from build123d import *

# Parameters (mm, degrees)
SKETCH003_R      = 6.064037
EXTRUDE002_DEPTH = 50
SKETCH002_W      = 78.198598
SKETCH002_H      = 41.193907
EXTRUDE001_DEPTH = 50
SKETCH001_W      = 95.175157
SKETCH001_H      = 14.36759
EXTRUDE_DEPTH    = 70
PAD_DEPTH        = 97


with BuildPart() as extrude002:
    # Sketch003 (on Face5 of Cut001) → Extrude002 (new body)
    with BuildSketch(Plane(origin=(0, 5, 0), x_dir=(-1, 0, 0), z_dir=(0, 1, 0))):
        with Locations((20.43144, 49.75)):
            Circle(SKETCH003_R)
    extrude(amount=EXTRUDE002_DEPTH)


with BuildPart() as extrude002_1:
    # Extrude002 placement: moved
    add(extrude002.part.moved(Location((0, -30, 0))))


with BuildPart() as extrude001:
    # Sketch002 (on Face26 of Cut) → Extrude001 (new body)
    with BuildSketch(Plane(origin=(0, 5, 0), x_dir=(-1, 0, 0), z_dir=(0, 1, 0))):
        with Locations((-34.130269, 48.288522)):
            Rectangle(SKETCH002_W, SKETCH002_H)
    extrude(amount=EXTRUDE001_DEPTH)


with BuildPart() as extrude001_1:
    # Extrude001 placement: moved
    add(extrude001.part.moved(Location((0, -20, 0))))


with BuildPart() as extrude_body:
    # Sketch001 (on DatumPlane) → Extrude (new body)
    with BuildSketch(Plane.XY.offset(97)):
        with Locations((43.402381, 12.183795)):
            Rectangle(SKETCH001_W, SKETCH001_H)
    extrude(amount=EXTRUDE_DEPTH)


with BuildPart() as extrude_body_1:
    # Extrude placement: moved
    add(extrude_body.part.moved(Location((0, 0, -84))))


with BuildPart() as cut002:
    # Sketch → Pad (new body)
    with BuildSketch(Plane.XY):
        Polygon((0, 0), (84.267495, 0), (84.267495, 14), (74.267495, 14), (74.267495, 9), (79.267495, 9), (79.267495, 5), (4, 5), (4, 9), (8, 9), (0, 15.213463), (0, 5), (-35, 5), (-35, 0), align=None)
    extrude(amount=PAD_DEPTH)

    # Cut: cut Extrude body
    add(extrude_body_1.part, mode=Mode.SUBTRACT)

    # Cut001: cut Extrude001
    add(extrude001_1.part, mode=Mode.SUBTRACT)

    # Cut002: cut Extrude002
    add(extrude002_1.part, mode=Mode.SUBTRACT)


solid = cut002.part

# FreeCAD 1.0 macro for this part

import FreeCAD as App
import Part
import Sketcher
Q = App.Units.Quantity

doc = App.newDocument("Part")
body = doc.addObject("PartDesign::Body", "Body")

# Sketch on XZ plane
sketch1 = body.newObject("Sketcher::SketchObject", "Sketch")
sketch1.AttachmentSupport = (doc.getObject("XZ_Plane"), [""])
sketch1.MapMode = "FlatFace"
sketch1.AttachmentOffset = App.Placement(App.Vector(0, 0, -5), App.Rotation())
sketch1.addGeometry(Part.Circle(App.Vector(-20, 50, 0), App.Vector(0, 0, 1), 6), False)
sketch1.addConstraint(Sketcher.Constraint("DistanceY", -1, 1, 0, 3, Q("49.75 mm")))
sketch1.addConstraint(Sketcher.Constraint("Diameter", 0, Q("12.128074 mm")))
sketch1.addConstraint(Sketcher.Constraint("DistanceX", 0, 3, -1, 1, Q("20.43144 mm")))
pad1 = body.newObject("PartDesign::Pad", "Pad")
pad1.Profile = sketch1
pad1.Length = 50
pad1.Reversed = True
body2 = doc.addObject("PartDesign::Body", "Body001")
doc.recompute()

body.Placement = App.Placement(App.Vector(0, -30, 0), App.Rotation(App.Vector(0, 0, 1), 0))
boolean = body2.newObject("PartDesign::Boolean", "Boolean")
boolean.Type = "Fuse"
boolean.addObjects([body])
body3 = doc.addObject("PartDesign::Body", "Body002")

# Sketch on XZ plane
sketch2 = body3.newObject("Sketcher::SketchObject", "Sketch001")
sketch2.AttachmentSupport = (doc.getObject("XZ_Plane002"), [""])
sketch2.MapMode = "FlatFace"
sketch2.AttachmentOffset = App.Placement(App.Vector(0, 0, -5), App.Rotation())
sketch2.addGeometry(Part.LineSegment(App.Vector(73, 69, 0), App.Vector(73, 28, 0)), False)
sketch2.addGeometry(Part.LineSegment(App.Vector(73, 28, 0), App.Vector(-5, 28, 0)), False)
sketch2.addGeometry(Part.LineSegment(App.Vector(-5, 28, 0), App.Vector(-5, 69, 0)), False)
sketch2.addGeometry(Part.LineSegment(App.Vector(-5, 69, 0), App.Vector(73, 69, 0)), False)
sketch2.addConstraint(Sketcher.Constraint("Coincident", 0, 2, 1, 1))
sketch2.addConstraint(Sketcher.Constraint("Coincident", 1, 2, 2, 1))
sketch2.addConstraint(Sketcher.Constraint("Coincident", 2, 2, 3, 1))
sketch2.addConstraint(Sketcher.Constraint("Coincident", 3, 2, 0, 1))
sketch2.addConstraint(Sketcher.Constraint("Vertical", 0))
sketch2.addConstraint(Sketcher.Constraint("Horizontal", 1))
sketch2.addConstraint(Sketcher.Constraint("Vertical", 2))
sketch2.addConstraint(Sketcher.Constraint("Horizontal", 3))
sketch2.addConstraint(Sketcher.Constraint("DistanceX", 1, 2, 1, 1, Q("78.198598 mm")))
sketch2.addConstraint(Sketcher.Constraint("DistanceY", 0, 2, 0, 1, Q("41.193907 mm")))
sketch2.addConstraint(Sketcher.Constraint("DistanceX", -1, 1, 0, 2, Q("73.229568 mm")))
sketch2.addConstraint(Sketcher.Constraint("DistanceY", -1, 1, 0, 2, Q("27.691568 mm")))
pad2 = body3.newObject("PartDesign::Pad", "Pad001")
pad2.Profile = sketch2
pad2.Length = 50
pad2.Reversed = True
body4 = doc.addObject("PartDesign::Body", "Body003")
doc.recompute()

body3.Placement = App.Placement(App.Vector(0, -20, 0), App.Rotation(App.Vector(0, 0, 1), 0))
boolean2 = body4.newObject("PartDesign::Boolean", "Boolean001")
boolean2.Type = "Fuse"
boolean2.addObjects([body3])
body5 = doc.addObject("PartDesign::Body", "Body004")

# Sketch on XY plane
sketch3 = body5.newObject("Sketcher::SketchObject", "Sketch002")
sketch3.AttachmentSupport = (doc.getObject("XY_Plane004"), [""])
sketch3.MapMode = "FlatFace"
sketch3.AttachmentOffset = App.Placement(App.Vector(0, 0, 97), App.Rotation())
sketch3.addGeometry(Part.LineSegment(App.Vector(-4, 19, 0), App.Vector(-4, 5, 0)), False)
sketch3.addGeometry(Part.LineSegment(App.Vector(-4, 5, 0), App.Vector(91, 5, 0)), False)
sketch3.addGeometry(Part.LineSegment(App.Vector(91, 5, 0), App.Vector(91, 19, 0)), False)
sketch3.addGeometry(Part.LineSegment(App.Vector(91, 19, 0), App.Vector(-4, 19, 0)), False)
sketch3.addConstraint(Sketcher.Constraint("Coincident", 0, 2, 1, 1))
sketch3.addConstraint(Sketcher.Constraint("Coincident", 1, 2, 2, 1))
sketch3.addConstraint(Sketcher.Constraint("Coincident", 2, 2, 3, 1))
sketch3.addConstraint(Sketcher.Constraint("Coincident", 3, 2, 0, 1))
sketch3.addConstraint(Sketcher.Constraint("Vertical", 0))
sketch3.addConstraint(Sketcher.Constraint("Horizontal", 1))
sketch3.addConstraint(Sketcher.Constraint("Vertical", 2))
sketch3.addConstraint(Sketcher.Constraint("Horizontal", 3))
sketch3.addConstraint(Sketcher.Constraint("DistanceY", -1, 1, 0, 2, Q("5 mm")))
sketch3.addConstraint(Sketcher.Constraint("DistanceY", 0, 2, 0, 1, Q("14.36759 mm")))
sketch3.addConstraint(Sketcher.Constraint("DistanceX", 1, 1, 1, 2, Q("95.175157 mm")))
sketch3.addConstraint(Sketcher.Constraint("DistanceX", -1, 1, 1, 2, Q("90.989959 mm")))
pad3 = body5.newObject("PartDesign::Pad", "Pad002")
pad3.Profile = sketch3
pad3.Length = 70
body6 = doc.addObject("PartDesign::Body", "Body005")
doc.recompute()

body5.Placement = App.Placement(App.Vector(0, 0, -84), App.Rotation(App.Vector(0, 0, 1), 0))
boolean3 = body6.newObject("PartDesign::Boolean", "Boolean002")
boolean3.Type = "Fuse"
boolean3.addObjects([body5])
body7 = doc.addObject("PartDesign::Body", "Body006")

# Sketch on XY plane
sketch4 = body7.newObject("Sketcher::SketchObject", "Sketch003")
sketch4.AttachmentSupport = (doc.getObject("XY_Plane006"), [""])
sketch4.MapMode = "FlatFace"
sketch4.addGeometry(Part.LineSegment(App.Vector(84.3, 0, 0), App.Vector(84.3, 14, 0)), False)
sketch4.addGeometry(Part.LineSegment(App.Vector(84.3, 14, 0), App.Vector(74.3, 14, 0)), False)
sketch4.addGeometry(Part.LineSegment(App.Vector(74.3, 14, 0), App.Vector(74.3, 9, 0)), False)
sketch4.addGeometry(Part.LineSegment(App.Vector(74.3, 9, 0), App.Vector(79.3, 9, 0)), False)
sketch4.addGeometry(Part.LineSegment(App.Vector(79.3, 9, 0), App.Vector(79.3, 5, 0)), False)
sketch4.addGeometry(Part.LineSegment(App.Vector(79.3, 5, 0), App.Vector(4, 5, 0)), False)
sketch4.addGeometry(Part.LineSegment(App.Vector(4, 5, 0), App.Vector(4, 9, 0)), False)
sketch4.addGeometry(Part.LineSegment(App.Vector(4, 9, 0), App.Vector(8, 9, 0)), False)
sketch4.addGeometry(Part.LineSegment(App.Vector(8, 9, 0), App.Vector(0, 15.2, 0)), False)
sketch4.addGeometry(Part.LineSegment(App.Vector(0, 15.2, 0), App.Vector(0, 5, 0)), False)
sketch4.addGeometry(Part.LineSegment(App.Vector(0, 5, 0), App.Vector(-35, 5, 0)), False)
sketch4.addGeometry(Part.LineSegment(App.Vector(-35, 5, 0), App.Vector(-35, 0, 0)), False)
sketch4.addGeometry(Part.LineSegment(App.Vector(-35, 0, 0), App.Vector(84.3, 0, 0)), False)
sketch4.addConstraint(Sketcher.Constraint("Coincident", 0, 2, 1, 1))
sketch4.addConstraint(Sketcher.Constraint("Coincident", 1, 2, 2, 1))
sketch4.addConstraint(Sketcher.Constraint("Coincident", 2, 2, 3, 1))
sketch4.addConstraint(Sketcher.Constraint("Coincident", 3, 2, 4, 1))
sketch4.addConstraint(Sketcher.Constraint("Coincident", 4, 2, 5, 1))
sketch4.addConstraint(Sketcher.Constraint("Coincident", 5, 2, 6, 1))
sketch4.addConstraint(Sketcher.Constraint("Coincident", 6, 2, 7, 1))
sketch4.addConstraint(Sketcher.Constraint("Coincident", 7, 2, 8, 1))
sketch4.addConstraint(Sketcher.Constraint("Coincident", 8, 2, 9, 1))
sketch4.addConstraint(Sketcher.Constraint("Coincident", 9, 2, 10, 1))
sketch4.addConstraint(Sketcher.Constraint("Coincident", 10, 2, 11, 1))
sketch4.addConstraint(Sketcher.Constraint("Coincident", 11, 2, 12, 1))
sketch4.addConstraint(Sketcher.Constraint("Coincident", 12, 2, 0, 1))
sketch4.addConstraint(Sketcher.Constraint("Vertical", 0))
sketch4.addConstraint(Sketcher.Constraint("Horizontal", 1))
sketch4.addConstraint(Sketcher.Constraint("Vertical", 2))
sketch4.addConstraint(Sketcher.Constraint("Horizontal", 3))
sketch4.addConstraint(Sketcher.Constraint("Vertical", 4))
sketch4.addConstraint(Sketcher.Constraint("Horizontal", 5))
sketch4.addConstraint(Sketcher.Constraint("Vertical", 6))
sketch4.addConstraint(Sketcher.Constraint("Horizontal", 7))
sketch4.addConstraint(Sketcher.Constraint("Vertical", 9))
sketch4.addConstraint(Sketcher.Constraint("Horizontal", 10))
sketch4.addConstraint(Sketcher.Constraint("Vertical", 11))
sketch4.addConstraint(Sketcher.Constraint("Horizontal", 12))
sketch4.addConstraint(Sketcher.Constraint("PointOnObject", 8, 2, -2))
sketch4.addConstraint(Sketcher.Constraint("PointOnObject", 11, 2, -1))
sketch4.addConstraint(Sketcher.Constraint("Horizontal", 3, 2, 6, 2))
sketch4.addConstraint(Sketcher.Constraint("Horizontal", 5, 2, 9, 2))
sketch4.addConstraint(Sketcher.Constraint("Equal", 3, 2))
sketch4.addConstraint(Sketcher.Constraint("Equal", 7, 4))
sketch4.addConstraint(Sketcher.Constraint("Equal", 2, 11))
sketch4.addConstraint(Sketcher.Constraint("DistanceX", 1, 2, 1, 1, Q("10 mm")))
sketch4.addConstraint(Sketcher.Constraint("DistanceX", 3, 1, 3, 2, Q("5 mm")))
sketch4.addConstraint(Sketcher.Constraint("DistanceX", 7, 1, 7, 2, Q("4 mm")))
sketch4.addConstraint(Sketcher.Constraint("DistanceX", 10, 2, 10, 1, Q("35 mm")))
sketch4.addConstraint(Sketcher.Constraint("DistanceX", -1, 1, 5, 2, Q("4 mm")))
sketch4.addConstraint(Sketcher.Constraint("DistanceX", 5, 2, 5, 1, Q("75.267495 mm")))
sketch4.addConstraint(Sketcher.Constraint("DistanceY", 9, 2, 9, 1, Q("10.213463 mm")))
pad4 = body7.newObject("PartDesign::Pad", "Pad003")
pad4.Profile = sketch4
pad4.Length = 97
doc.recompute()

boolean4 = body7.newObject("PartDesign::Boolean", "Boolean003")
boolean4.Type = "Cut"
boolean4.addObjects([body6])
doc.recompute()

boolean5 = body7.newObject("PartDesign::Boolean", "Boolean004")
boolean5.Type = "Cut"
boolean5.addObjects([body4])
doc.recompute()

boolean6 = body7.newObject("PartDesign::Boolean", "Boolean005")
boolean6.Type = "Cut"
boolean6.addObjects([body2])

doc.recompute()
